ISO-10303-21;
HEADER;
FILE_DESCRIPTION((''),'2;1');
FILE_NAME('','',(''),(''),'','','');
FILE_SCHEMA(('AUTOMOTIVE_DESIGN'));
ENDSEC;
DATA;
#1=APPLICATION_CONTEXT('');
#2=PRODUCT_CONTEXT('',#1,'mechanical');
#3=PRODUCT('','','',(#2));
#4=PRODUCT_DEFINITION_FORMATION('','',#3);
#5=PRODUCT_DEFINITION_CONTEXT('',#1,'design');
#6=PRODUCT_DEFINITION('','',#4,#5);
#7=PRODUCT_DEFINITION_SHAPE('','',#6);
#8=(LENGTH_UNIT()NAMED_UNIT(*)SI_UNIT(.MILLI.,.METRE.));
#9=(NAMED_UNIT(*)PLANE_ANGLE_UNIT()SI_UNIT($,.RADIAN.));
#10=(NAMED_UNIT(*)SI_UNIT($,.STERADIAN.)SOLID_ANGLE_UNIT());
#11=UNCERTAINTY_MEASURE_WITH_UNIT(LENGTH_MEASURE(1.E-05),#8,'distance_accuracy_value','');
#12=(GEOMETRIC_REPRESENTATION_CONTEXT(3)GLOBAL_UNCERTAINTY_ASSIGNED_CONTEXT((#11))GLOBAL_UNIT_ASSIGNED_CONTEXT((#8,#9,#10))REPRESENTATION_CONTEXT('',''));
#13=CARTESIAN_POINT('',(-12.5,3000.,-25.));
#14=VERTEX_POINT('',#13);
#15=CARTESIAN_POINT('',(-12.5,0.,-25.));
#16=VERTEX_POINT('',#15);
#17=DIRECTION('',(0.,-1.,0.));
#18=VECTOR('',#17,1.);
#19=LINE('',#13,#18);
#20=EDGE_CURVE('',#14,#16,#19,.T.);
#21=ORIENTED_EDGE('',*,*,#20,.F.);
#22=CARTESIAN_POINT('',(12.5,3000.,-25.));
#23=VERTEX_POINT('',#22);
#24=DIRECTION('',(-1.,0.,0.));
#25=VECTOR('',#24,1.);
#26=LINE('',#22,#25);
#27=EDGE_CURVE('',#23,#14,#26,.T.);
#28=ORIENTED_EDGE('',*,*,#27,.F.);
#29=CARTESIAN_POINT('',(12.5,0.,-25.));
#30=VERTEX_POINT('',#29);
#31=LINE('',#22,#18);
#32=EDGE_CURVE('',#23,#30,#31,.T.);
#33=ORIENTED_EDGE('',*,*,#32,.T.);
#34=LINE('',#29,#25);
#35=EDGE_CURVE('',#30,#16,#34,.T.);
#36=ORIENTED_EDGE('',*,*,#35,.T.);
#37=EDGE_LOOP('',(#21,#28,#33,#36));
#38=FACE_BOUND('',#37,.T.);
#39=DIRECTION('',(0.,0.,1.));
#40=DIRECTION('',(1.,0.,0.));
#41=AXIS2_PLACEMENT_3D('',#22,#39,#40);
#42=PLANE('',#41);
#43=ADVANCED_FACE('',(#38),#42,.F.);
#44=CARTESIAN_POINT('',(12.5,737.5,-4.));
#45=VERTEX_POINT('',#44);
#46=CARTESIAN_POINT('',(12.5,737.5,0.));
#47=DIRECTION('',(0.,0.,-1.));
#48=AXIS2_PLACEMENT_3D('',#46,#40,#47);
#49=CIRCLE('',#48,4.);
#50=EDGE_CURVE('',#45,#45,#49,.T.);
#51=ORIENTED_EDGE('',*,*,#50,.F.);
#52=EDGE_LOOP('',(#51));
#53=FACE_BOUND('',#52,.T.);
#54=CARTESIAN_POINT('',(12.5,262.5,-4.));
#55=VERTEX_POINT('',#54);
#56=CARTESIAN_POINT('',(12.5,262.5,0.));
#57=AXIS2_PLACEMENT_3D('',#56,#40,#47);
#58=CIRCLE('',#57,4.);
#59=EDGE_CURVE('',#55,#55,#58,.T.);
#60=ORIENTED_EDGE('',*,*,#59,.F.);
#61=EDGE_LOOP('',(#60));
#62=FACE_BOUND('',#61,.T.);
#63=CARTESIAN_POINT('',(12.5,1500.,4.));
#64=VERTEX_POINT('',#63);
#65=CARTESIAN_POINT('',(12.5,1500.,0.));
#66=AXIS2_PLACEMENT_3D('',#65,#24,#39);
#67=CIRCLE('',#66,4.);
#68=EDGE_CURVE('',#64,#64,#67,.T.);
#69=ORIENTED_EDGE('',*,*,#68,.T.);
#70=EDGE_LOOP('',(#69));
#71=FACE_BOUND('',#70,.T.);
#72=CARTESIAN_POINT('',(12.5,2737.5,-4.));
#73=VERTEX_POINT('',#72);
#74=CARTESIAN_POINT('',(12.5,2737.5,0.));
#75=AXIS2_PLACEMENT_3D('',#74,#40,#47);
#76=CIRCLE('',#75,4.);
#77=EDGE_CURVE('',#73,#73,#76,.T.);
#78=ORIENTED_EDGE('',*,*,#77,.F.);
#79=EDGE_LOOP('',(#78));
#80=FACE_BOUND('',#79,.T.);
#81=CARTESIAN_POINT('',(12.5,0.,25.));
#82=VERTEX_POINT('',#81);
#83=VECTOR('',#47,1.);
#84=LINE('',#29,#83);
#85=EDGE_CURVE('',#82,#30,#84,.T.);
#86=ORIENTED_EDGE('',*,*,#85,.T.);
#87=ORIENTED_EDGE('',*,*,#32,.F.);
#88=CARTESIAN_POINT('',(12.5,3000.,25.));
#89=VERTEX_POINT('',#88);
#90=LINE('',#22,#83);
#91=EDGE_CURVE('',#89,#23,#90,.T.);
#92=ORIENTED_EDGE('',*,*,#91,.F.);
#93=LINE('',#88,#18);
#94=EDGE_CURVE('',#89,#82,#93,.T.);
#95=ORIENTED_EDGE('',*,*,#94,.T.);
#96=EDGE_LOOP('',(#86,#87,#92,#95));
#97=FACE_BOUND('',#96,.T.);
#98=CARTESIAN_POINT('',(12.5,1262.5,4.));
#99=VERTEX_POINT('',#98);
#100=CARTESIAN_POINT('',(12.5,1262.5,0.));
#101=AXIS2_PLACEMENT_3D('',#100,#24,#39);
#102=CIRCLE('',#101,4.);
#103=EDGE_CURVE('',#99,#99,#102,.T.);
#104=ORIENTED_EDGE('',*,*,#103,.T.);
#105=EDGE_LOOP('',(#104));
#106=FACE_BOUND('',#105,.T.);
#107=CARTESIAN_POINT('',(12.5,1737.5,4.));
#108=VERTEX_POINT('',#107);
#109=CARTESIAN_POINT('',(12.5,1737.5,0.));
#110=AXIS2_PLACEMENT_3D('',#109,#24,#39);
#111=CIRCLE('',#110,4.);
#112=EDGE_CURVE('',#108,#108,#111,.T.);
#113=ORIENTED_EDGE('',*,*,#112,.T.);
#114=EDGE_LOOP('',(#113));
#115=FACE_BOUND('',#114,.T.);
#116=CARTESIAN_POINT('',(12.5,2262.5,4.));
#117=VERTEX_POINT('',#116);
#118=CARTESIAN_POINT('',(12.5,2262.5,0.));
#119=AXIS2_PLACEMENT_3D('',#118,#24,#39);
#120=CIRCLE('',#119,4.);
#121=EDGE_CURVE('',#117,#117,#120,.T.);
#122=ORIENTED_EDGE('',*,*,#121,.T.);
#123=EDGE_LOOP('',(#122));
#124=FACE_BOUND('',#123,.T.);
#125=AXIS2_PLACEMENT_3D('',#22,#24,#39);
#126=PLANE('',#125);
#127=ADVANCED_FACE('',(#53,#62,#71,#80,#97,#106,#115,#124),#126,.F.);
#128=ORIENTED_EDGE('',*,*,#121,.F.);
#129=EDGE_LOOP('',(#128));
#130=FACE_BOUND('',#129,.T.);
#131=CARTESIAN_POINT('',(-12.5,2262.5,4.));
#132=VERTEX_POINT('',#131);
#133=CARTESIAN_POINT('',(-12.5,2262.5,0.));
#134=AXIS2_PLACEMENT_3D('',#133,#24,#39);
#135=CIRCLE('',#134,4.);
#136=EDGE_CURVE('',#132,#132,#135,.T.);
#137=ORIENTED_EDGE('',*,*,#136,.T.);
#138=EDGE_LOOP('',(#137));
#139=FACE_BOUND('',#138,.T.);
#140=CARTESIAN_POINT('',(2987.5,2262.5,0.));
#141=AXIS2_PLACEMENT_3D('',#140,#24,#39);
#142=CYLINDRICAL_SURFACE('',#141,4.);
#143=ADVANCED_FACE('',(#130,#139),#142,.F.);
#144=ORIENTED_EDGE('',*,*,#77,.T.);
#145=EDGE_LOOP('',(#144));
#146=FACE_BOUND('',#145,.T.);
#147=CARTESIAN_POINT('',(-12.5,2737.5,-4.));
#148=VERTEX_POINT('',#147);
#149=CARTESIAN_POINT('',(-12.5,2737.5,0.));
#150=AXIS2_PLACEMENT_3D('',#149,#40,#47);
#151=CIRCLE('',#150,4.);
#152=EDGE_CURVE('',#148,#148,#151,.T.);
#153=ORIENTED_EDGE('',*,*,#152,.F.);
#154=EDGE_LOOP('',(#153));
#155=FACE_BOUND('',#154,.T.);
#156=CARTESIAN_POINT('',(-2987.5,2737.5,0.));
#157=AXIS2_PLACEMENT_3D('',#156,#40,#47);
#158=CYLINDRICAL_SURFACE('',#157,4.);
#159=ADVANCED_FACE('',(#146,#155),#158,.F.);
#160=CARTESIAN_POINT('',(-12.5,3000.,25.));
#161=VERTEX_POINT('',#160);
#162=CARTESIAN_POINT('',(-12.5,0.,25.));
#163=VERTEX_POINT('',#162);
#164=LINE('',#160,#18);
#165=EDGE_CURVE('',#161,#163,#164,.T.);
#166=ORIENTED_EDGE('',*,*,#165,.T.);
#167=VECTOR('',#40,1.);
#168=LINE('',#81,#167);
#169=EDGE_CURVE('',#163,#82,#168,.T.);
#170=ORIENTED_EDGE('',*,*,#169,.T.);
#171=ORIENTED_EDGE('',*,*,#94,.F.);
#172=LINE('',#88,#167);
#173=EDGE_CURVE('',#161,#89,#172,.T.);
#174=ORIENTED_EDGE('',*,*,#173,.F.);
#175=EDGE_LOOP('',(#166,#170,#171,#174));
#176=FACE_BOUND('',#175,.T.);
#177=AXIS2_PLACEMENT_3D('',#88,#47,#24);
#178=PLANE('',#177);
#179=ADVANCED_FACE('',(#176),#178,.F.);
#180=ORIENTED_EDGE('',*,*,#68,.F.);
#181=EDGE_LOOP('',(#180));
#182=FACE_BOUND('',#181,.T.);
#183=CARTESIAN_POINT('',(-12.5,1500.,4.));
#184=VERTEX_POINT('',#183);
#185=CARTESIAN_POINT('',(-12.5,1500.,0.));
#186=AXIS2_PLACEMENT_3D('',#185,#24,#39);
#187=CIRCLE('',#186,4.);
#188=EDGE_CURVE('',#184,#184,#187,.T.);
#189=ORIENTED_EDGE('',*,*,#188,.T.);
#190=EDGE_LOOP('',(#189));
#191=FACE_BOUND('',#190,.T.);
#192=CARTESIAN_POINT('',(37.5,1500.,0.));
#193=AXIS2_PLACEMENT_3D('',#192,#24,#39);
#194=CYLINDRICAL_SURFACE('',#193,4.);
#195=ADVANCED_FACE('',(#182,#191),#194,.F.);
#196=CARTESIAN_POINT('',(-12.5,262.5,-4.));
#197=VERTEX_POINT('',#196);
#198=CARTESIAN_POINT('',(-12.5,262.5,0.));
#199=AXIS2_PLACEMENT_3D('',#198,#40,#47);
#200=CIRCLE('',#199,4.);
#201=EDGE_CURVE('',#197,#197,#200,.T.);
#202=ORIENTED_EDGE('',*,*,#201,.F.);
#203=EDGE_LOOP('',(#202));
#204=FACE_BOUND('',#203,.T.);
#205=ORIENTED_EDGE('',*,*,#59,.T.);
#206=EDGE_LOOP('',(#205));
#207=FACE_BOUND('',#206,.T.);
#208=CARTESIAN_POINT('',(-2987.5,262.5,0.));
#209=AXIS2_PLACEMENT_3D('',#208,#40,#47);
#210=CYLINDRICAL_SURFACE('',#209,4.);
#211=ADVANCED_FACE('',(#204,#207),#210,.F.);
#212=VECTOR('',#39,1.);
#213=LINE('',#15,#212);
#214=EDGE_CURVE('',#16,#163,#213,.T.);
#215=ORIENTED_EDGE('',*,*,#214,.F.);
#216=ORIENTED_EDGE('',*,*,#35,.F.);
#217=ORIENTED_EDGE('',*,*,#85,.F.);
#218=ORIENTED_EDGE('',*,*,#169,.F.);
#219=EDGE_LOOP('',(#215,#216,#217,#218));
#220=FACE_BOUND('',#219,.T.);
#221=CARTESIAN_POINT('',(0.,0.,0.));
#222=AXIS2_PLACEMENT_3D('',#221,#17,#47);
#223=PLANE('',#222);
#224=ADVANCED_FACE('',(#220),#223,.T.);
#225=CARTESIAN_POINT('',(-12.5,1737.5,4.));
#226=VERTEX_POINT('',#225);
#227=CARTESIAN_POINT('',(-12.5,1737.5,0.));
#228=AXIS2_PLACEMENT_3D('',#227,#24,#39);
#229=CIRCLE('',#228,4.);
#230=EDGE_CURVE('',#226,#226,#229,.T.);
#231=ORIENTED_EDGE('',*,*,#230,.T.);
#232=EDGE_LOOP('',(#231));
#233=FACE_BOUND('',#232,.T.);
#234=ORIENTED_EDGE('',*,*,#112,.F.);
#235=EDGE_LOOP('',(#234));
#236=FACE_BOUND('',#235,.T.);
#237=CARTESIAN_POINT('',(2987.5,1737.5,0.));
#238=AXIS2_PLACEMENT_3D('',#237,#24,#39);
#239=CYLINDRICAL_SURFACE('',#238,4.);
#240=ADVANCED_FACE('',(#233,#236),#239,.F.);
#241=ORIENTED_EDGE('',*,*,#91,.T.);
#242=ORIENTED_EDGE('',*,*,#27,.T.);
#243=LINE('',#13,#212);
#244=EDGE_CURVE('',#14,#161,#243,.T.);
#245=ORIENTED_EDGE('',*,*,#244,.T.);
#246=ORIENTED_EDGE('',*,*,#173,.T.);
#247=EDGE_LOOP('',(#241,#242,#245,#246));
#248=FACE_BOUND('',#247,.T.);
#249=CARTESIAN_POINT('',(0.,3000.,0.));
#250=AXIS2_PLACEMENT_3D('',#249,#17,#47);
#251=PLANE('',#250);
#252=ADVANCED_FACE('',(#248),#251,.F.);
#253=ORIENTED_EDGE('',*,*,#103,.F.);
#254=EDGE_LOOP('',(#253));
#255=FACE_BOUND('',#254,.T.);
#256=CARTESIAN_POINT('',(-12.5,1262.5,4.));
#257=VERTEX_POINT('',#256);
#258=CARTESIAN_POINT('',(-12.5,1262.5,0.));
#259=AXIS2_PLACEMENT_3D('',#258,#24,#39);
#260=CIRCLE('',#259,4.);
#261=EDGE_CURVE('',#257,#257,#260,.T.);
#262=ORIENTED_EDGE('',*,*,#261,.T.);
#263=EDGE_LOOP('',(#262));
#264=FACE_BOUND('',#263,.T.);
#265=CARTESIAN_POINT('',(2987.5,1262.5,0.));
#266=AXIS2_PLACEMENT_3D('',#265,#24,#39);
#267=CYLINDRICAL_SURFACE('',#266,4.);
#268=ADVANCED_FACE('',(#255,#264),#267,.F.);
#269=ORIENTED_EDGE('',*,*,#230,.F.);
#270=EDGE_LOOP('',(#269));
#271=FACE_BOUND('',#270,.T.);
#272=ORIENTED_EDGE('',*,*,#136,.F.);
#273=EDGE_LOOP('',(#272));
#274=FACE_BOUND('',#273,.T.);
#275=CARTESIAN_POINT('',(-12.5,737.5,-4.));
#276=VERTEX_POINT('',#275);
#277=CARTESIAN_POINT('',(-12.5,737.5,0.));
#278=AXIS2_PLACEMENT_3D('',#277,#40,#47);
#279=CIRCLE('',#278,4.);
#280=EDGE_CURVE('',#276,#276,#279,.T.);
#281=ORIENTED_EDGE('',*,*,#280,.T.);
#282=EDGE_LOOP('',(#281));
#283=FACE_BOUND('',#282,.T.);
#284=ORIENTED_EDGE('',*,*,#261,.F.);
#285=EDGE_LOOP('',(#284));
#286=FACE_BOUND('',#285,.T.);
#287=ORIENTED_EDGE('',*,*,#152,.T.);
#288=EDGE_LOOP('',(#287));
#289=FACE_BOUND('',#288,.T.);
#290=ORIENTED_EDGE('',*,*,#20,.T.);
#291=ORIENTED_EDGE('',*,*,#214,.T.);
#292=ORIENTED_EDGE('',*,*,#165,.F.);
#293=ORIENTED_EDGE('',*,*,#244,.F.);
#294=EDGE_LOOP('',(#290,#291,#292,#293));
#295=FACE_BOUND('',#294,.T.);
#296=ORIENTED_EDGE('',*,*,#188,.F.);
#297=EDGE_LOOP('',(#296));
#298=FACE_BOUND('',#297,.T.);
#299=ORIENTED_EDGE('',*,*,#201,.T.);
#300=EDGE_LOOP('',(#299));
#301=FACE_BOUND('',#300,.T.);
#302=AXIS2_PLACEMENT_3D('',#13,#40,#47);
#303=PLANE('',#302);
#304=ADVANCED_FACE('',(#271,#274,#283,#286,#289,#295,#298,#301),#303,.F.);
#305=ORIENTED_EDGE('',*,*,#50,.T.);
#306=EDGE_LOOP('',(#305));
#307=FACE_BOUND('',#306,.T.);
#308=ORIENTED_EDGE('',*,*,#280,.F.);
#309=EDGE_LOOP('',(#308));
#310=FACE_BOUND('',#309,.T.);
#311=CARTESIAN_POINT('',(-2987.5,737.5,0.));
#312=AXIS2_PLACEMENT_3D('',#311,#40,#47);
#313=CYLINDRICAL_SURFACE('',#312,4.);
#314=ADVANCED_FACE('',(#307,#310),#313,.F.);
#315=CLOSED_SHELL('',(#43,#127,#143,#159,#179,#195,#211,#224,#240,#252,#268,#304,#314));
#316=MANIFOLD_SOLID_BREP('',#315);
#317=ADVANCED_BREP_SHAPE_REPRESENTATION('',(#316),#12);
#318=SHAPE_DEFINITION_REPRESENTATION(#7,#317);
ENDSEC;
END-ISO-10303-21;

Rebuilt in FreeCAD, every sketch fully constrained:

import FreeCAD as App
import Part
import Sketcher

V = App.Vector


def add_polygon(sketch, points):
    """Adds a closed chain of lines whose ends are joined by coincident constraints."""
    first, n = sketch.GeometryCount, len(points)
    for a, b in zip(points, points[1:] + points[:1]):
        sketch.addGeometry(Part.LineSegment(App.Vector(*a, 0), App.Vector(*b, 0)), False)
    for i in range(n):
        sketch.addConstraint(Sketcher.Constraint("Coincident", first + i, 2, first + (i + 1) % n, 1))

doc = App.newDocument("Part")
body = doc.addObject("PartDesign::Body", "Body")

# Sketch on XZ plane
sketch1 = body.newObject("Sketcher::SketchObject", "Sketch")
sketch1.AttachmentSupport = (doc.getObject("XZ_Plane"), [""])
sketch1.MapMode = "FlatFace"
add_polygon(sketch1, [(-12, -25), (-12, 25), (12, 25), (12, -25)])  # lines 0-3
sketch1.addConstraint([
    Sketcher.Constraint("Vertical", 0),
    Sketcher.Constraint("Horizontal", 1),
    Sketcher.Constraint("Vertical", 2),
    Sketcher.Constraint("Horizontal", 3),
    Sketcher.Constraint("Symmetric", 0, 2, 2, 2, -1, 1),
    Sketcher.Constraint("DistanceX", 1, 1, 1, 2, 25.0),
    Sketcher.Constraint("DistanceY", 0, 1, 0, 2, 50.0),
])
pad1 = body.newObject("PartDesign::Pad", "Pad")
pad1.Profile = sketch1
pad1.Length = 3000
pad1.Reversed = True

# Sketch on YZ plane
sketch2 = body.newObject("Sketcher::SketchObject", "Sketch001")
sketch2.AttachmentSupport = (doc.getObject("YZ_Plane"), [""])
sketch2.MapMode = "FlatFace"
sketch2.AttachmentOffset = App.Placement(V(0, 0, 12.5), App.Rotation())
sketch2.addGeometry([
    Part.Circle(V(2737.5, 0, 0), V(0, 0, 1), 4),
    Part.Circle(V(262.5, 0, 0), V(0, 0, 1), 4),
    Part.Circle(V(737.5, 0, 0), V(0, 0, 1), 4),
], False)
sketch2.addConstraint([
    Sketcher.Constraint("Equal", 0, 1),
    Sketcher.Constraint("Equal", 1, 2),
    Sketcher.Constraint("PointOnObject", 0, 3, -1),
    Sketcher.Constraint("PointOnObject", 1, 3, -1),
    Sketcher.Constraint("PointOnObject", 2, 3, -1),
    Sketcher.Constraint("Diameter", 0, 8.0),
    Sketcher.Constraint("DistanceX", 1, 3, 0, 3, 2475.0),
    Sketcher.Constraint("DistanceX", 1, 3, 2, 3, 475.0),
    Sketcher.Constraint("DistanceX", -1, 1, 0, 3, 2737.5),
])
pocket1 = body.newObject("PartDesign::Pocket", "Pocket")
pocket1.Profile = sketch2
pocket1.Length = 3000

# Sketch on YZ plane
sketch3 = body.newObject("Sketcher::SketchObject", "Sketch002")
sketch3.AttachmentSupport = (doc.getObject("YZ_Plane"), [""])
sketch3.MapMode = "FlatFace"
sketch3.AttachmentOffset = App.Placement(V(0, 0, -12.5), App.Rotation())
sketch3.addGeometry(Part.Circle(V(2262.5, 0, 0), V(0, 0, 1), 4), False)
sketch3.addConstraint([
    Sketcher.Constraint("PointOnObject", 0, 3, -1),
    Sketcher.Constraint("Diameter", 0, 8.0),
    Sketcher.Constraint("DistanceX", -1, 1, 0, 3, 2262.5),
])
pocket2 = body.newObject("PartDesign::Pocket", "Pocket001")
pocket2.Profile = sketch3
pocket2.Length = 3000
pocket2.Reversed = True

# Sketch on YZ plane
sketch4 = body.newObject("Sketcher::SketchObject", "Sketch003")
sketch4.AttachmentSupport = (doc.getObject("YZ_Plane"), [""])
sketch4.MapMode = "FlatFace"
sketch4.AttachmentOffset = App.Placement(V(0, 0, -12.5), App.Rotation())
sketch4.addGeometry([
    Part.Circle(V(1737.5, 0, 0), V(0, 0, 1), 4),
    Part.Circle(V(1262.5, 0, 0), V(0, 0, 1), 4),
], False)
sketch4.addConstraint([
    Sketcher.Constraint("Equal", 0, 1),
    Sketcher.Constraint("PointOnObject", 0, 3, -1),
    Sketcher.Constraint("PointOnObject", 1, 3, -1),
    Sketcher.Constraint("Diameter", 0, 8.0),
    Sketcher.Constraint("DistanceX", 1, 3, 0, 3, 475.0),
    Sketcher.Constraint("DistanceX", -1, 1, 0, 3, 1737.5),
])
pocket3 = body.newObject("PartDesign::Pocket", "Pocket002")
pocket3.Profile = sketch4
pocket3.Length = 3000
pocket3.Reversed = True

# Sketch on YZ plane
sketch5 = body.newObject("Sketcher::SketchObject", "Sketch004")
sketch5.AttachmentSupport = (doc.getObject("YZ_Plane"), [""])
sketch5.MapMode = "FlatFace"
sketch5.AttachmentOffset = App.Placement(V(0, 0, -12.5), App.Rotation())
sketch5.addGeometry(Part.Circle(V(1500, 0, 0), V(0, 0, 1), 4), False)
sketch5.addConstraint([
    Sketcher.Constraint("PointOnObject", 0, 3, -1),
    Sketcher.Constraint("Diameter", 0, 8.0),
    Sketcher.Constraint("DistanceX", -1, 1, 0, 3, 1500.0),
])
pocket4 = body.newObject("PartDesign::Pocket", "Pocket003")
pocket4.Profile = sketch5
pocket4.Length = 50
pocket4.Reversed = True

doc.recompute()
